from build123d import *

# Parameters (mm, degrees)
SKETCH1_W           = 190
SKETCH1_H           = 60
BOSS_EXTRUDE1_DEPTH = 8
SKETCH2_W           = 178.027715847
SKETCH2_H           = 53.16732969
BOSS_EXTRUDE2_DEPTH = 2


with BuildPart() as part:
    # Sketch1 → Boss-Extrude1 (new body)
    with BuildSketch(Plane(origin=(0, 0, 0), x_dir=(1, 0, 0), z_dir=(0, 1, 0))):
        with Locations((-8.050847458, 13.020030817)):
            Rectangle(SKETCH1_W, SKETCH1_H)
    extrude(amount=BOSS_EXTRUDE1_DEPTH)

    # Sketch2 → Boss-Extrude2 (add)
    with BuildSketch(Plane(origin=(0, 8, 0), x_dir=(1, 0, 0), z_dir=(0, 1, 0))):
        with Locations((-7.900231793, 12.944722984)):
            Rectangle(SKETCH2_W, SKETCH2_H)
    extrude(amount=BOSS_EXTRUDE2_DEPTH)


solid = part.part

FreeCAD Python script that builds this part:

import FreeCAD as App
import Part
import Sketcher

V = App.Vector

doc = App.newDocument("Part")
params = doc.addObject("Spreadsheet::Sheet", "Params")
for row, (alias, value) in enumerate([
    ("sketch1_width", "190 mm"),
    ("sketch1_height", "60 mm"),
    ("pad1_length", "8 mm"),
    ("pad2_length", "2 mm"),
], start=1):
    params.set(f"A{row}", alias)
    params.set(f"B{row}", "=" + value)
    params.setAlias(f"B{row}", alias)

body = doc.addObject("PartDesign::Body", "Body")

# Sketch on XZ plane
sketch1 = doc.addObject("Sketcher::SketchObject", "Sketch")
body.addObject(sketch1)
sketch1.AttachmentSupport = (doc.XZ_Plane, [""])
sketch1.MapMode = "FlatFace"
sketch1.addGeometry([
    Part.LineSegment(V(-103.050847, -43.020031, 0), V(-103.050847, 16.979969, 0)),
    Part.LineSegment(V(-103.050847, 16.979969, 0), V(86.949153, 16.979969, 0)),
    Part.LineSegment(V(86.949153, 16.979969, 0), V(86.949153, -43.020031, 0)),
    Part.LineSegment(V(86.949153, -43.020031, 0), V(-103.050847, -43.020031, 0)),
], False)
sketch1.addConstraint([
    Sketcher.Constraint("Coincident", 0, 2, 1, 1),
    Sketcher.Constraint("Coincident", 1, 2, 2, 1),
    Sketcher.Constraint("Coincident", 2, 2, 3, 1),
    Sketcher.Constraint("Coincident", 3, 2, 0, 1),
    Sketcher.Constraint("Vertical", 0),
    Sketcher.Constraint("Horizontal", 1),
    Sketcher.Constraint("Vertical", 2),
    Sketcher.Constraint("Horizontal", 3),
    Sketcher.Constraint("DistanceX", 1, 1, 1, 2, 190.0),
    Sketcher.Constraint("DistanceY", 0, 1, 0, 2, 60.0),
    Sketcher.Constraint("DistanceY", -1, 1, 0, 2, 16.979969),
    Sketcher.Constraint("DistanceX", 0, 2, -1, 1, 103.050847),
])
sketch1.setExpression("Constraints[8]", "Params.sketch1_width")
sketch1.setExpression("Constraints[9]", "Params.sketch1_height")
pad1 = doc.addObject("PartDesign::Pad", "Pad")
body.addObject(pad1)
pad1.Profile = sketch1
pad1.setExpression("Length", "Params.pad1_length")
pad1.Reversed = True

# Sketch on XZ plane
sketch2 = doc.addObject("Sketcher::SketchObject", "Sketch001")
body.addObject(sketch2)
sketch2.AttachmentSupport = (doc.XZ_Plane, [""])
sketch2.MapMode = "FlatFace"
sketch2.AttachmentOffset = App.Placement(V(0, 0, -8), App.Rotation())
sketch2.addGeometry([
    Part.LineSegment(V(-96.91409, -39.528388, 0), V(-96.91409, 13.638942, 0)),
    Part.LineSegment(V(-96.91409, 13.638942, 0), V(81.113626, 13.638942, 0)),
    Part.LineSegment(V(81.113626, 13.638942, 0), V(81.113626, -39.528388, 0)),
    Part.LineSegment(V(81.113626, -39.528388, 0), V(-96.91409, -39.528388, 0)),
], False)
sketch2.addConstraint([
    Sketcher.Constraint("Coincident", 0, 2, 1, 1),
    Sketcher.Constraint("Coincident", 1, 2, 2, 1),
    Sketcher.Constraint("Coincident", 2, 2, 3, 1),
    Sketcher.Constraint("Coincident", 3, 2, 0, 1),
    Sketcher.Constraint("Vertical", 0),
    Sketcher.Constraint("Horizontal", 1),
    Sketcher.Constraint("Vertical", 2),
    Sketcher.Constraint("Horizontal", 3),
    Sketcher.Constraint("DistanceY", 0, 1, 0, 2, 53.16733),
    Sketcher.Constraint("DistanceX", 1, 1, 1, 2, 178.027716),
    Sketcher.Constraint("DistanceX", 0, 2, -1, 1, 96.91409),
    Sketcher.Constraint("DistanceY", -1, 1, 0, 2, 13.638942),
])
pad2 = doc.addObject("PartDesign::Pad", "Pad001")
body.addObject(pad2)
pad2.Profile = sketch2
pad2.setExpression("Length", "Params.pad2_length")
pad2.Reversed = True

doc.recompute()
